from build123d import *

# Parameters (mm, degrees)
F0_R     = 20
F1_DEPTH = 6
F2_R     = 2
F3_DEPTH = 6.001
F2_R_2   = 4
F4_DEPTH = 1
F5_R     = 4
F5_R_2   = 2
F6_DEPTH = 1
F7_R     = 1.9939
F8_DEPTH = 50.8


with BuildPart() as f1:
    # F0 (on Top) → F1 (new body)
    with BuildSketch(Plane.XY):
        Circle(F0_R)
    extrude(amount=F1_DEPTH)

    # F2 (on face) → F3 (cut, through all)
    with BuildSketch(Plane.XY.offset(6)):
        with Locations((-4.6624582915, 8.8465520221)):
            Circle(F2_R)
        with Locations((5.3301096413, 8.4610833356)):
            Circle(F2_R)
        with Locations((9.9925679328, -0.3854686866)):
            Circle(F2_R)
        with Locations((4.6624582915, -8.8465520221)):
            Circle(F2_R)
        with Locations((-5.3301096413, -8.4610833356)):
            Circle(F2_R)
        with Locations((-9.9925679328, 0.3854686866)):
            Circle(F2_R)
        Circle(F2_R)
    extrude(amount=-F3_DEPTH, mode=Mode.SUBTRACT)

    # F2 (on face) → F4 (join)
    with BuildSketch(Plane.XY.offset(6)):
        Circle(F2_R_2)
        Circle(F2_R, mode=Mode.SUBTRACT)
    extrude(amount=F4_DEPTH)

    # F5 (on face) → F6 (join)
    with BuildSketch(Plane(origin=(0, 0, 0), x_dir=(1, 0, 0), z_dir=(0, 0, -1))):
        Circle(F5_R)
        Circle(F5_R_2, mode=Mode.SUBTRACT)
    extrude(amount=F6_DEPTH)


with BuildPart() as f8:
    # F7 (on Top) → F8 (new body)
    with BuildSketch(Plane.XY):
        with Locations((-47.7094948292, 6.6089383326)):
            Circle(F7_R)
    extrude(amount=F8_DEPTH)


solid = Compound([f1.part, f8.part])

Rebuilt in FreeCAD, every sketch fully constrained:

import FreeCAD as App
import Part
import Sketcher
from FreeCAD import Vector
Q = App.Units.Quantity

doc = App.newDocument("Part")
body = doc.addObject("PartDesign::Body", "Body")

sketch1 = doc.addObject("Sketcher::SketchObject", "Sketch")
body.addObject(sketch1)
sketch1.AttachmentSupport = (doc.XY_Plane, [""])
sketch1.MapMode = "FlatFace"
sketch1.addGeometry(Part.Circle(Vector(0, 0, 0), Vector(0, 0, 1), 20), False)
sketch1.addConstraint([
    Sketcher.Constraint("Coincident", 0, 3, -1, 1),
    Sketcher.Constraint("Diameter", 0, Q("40 mm")),
])
pad1 = doc.addObject("PartDesign::Pad", "Pad")
body.addObject(pad1)
pad1.Profile = sketch1
pad1.Length = 6

sketch2 = doc.addObject("Sketcher::SketchObject", "Sketch001")
body.addObject(sketch2)
sketch2.AttachmentSupport = (doc.XY_Plane, [""])
sketch2.MapMode = "FlatFace"
sketch2.AttachmentOffset = App.Placement(Vector(0, 0, 6), App.Rotation())
sketch2.addGeometry([
    Part.Circle(Vector(-4.7, 8.8, 0), Vector(0, 0, 1), 2),
    Part.Circle(Vector(5.3, 8.5, 0), Vector(0, 0, 1), 2),
    Part.Circle(Vector(10, -0.4, 0), Vector(0, 0, 1), 2),
    Part.Circle(Vector(4.7, -8.8, 0), Vector(0, 0, 1), 2),
    Part.Circle(Vector(-5.3, -8.5, 0), Vector(0, 0, 1), 2),
    Part.Circle(Vector(-10, 0.4, 0), Vector(0, 0, 1), 2),
    Part.Circle(Vector(0, 0, 0), Vector(0, 0, 1), 2),
], False)
sketch2.addConstraint([
    Sketcher.Constraint("Coincident", 6, 3, -1, 1),
    Sketcher.Constraint("Equal", 0, 1),
    Sketcher.Constraint("Equal", 1, 2),
    Sketcher.Constraint("Equal", 2, 3),
    Sketcher.Constraint("Equal", 3, 4),
    Sketcher.Constraint("Equal", 4, 5),
    Sketcher.Constraint("Equal", 5, 6),
    Sketcher.Constraint("Symmetric", 0, 3, 3, 3, -1, 1),
    Sketcher.Constraint("Symmetric", 1, 3, 4, 3, -1, 1),
    Sketcher.Constraint("Symmetric", 2, 3, 5, 3, -1, 1),
    Sketcher.Constraint("Diameter", 0, Q("4 mm")),
    Sketcher.Constraint("DistanceX", 0, 3, -1, 1, Q("4.662458 mm")),
    Sketcher.Constraint("DistanceX", -1, 1, 1, 3, Q("5.33011 mm")),
    Sketcher.Constraint("DistanceY", 2, 3, -1, 1, Q("0.385469 mm")),
    Sketcher.Constraint("DistanceY", 1, 3, 0, 3, Q("0.385469 mm")),
    Sketcher.Constraint("DistanceX", 1, 3, 2, 3, Q("4.662458 mm")),
    Sketcher.Constraint("DistanceY", 2, 3, 0, 3, Q("9.232021 mm")),
])
pocket1 = doc.addObject("PartDesign::Pocket", "Pocket")
body.addObject(pocket1)
pocket1.Profile = sketch2
pocket1.Type = "ThroughAll"

sketch3 = doc.addObject("Sketcher::SketchObject", "Sketch002")
body.addObject(sketch3)
sketch3.AttachmentSupport = (doc.XY_Plane, [""])
sketch3.MapMode = "FlatFace"
sketch3.AttachmentOffset = App.Placement(Vector(0, 0, 6), App.Rotation())
sketch3.addGeometry([
    Part.Circle(Vector(0, 0, 0), Vector(0, 0, 1), 4),
    Part.Circle(Vector(0, 0, 0), Vector(0, 0, 1), 2),
], False)
sketch3.addConstraint([
    Sketcher.Constraint("Coincident", 0, 3, -1, 1),
    Sketcher.Constraint("Coincident", 1, 3, -1, 1),
    Sketcher.Constraint("Diameter", 0, Q("8 mm")),
    Sketcher.Constraint("Diameter", 1, Q("4 mm")),
])
pad2 = doc.addObject("PartDesign::Pad", "Pad001")
body.addObject(pad2)
pad2.Profile = sketch3
pad2.Length = 1

sketch4 = doc.addObject("Sketcher::SketchObject", "Sketch003")
body.addObject(sketch4)
sketch4.AttachmentSupport = (doc.XY_Plane, [""])
sketch4.MapMode = "FlatFace"
sketch4.addGeometry([
    Part.Circle(Vector(0, 0, 0), Vector(0, 0, 1), 4),
    Part.Circle(Vector(0, 0, 0), Vector(0, 0, 1), 2),
], False)
sketch4.addConstraint([
    Sketcher.Constraint("Coincident", 0, 3, -1, 1),
    Sketcher.Constraint("Coincident", 1, 3, -1, 1),
    Sketcher.Constraint("Diameter", 0, Q("8 mm")),
    Sketcher.Constraint("Diameter", 1, Q("4 mm")),
])
pad3 = doc.addObject("PartDesign::Pad", "Pad002")
body.addObject(pad3)
pad3.Profile = sketch4
pad3.Length = 1
pad3.Reversed = True
body2 = doc.addObject("PartDesign::Body", "Body001")

sketch5 = doc.addObject("Sketcher::SketchObject", "Sketch004")
body2.addObject(sketch5)
sketch5.AttachmentSupport = (doc.getObject("XY_Plane001"), [""])
sketch5.MapMode = "FlatFace"
sketch5.addGeometry(Part.Circle(Vector(-47.7, 6.6, 0), Vector(0, 0, 1), 2), False)
sketch5.addConstraint([
    Sketcher.Constraint("Diameter", 0, Q("3.9878 mm")),
    Sketcher.Constraint("DistanceY", -1, 1, 0, 3, Q("6.608938 mm")),
    Sketcher.Constraint("DistanceX", 0, 3, -1, 1, Q("47.709495 mm")),
])
pad4 = doc.addObject("PartDesign::Pad", "Pad003")
body2.addObject(pad4)
pad4.Profile = sketch5
pad4.Length = 50.8

doc.recompute()
